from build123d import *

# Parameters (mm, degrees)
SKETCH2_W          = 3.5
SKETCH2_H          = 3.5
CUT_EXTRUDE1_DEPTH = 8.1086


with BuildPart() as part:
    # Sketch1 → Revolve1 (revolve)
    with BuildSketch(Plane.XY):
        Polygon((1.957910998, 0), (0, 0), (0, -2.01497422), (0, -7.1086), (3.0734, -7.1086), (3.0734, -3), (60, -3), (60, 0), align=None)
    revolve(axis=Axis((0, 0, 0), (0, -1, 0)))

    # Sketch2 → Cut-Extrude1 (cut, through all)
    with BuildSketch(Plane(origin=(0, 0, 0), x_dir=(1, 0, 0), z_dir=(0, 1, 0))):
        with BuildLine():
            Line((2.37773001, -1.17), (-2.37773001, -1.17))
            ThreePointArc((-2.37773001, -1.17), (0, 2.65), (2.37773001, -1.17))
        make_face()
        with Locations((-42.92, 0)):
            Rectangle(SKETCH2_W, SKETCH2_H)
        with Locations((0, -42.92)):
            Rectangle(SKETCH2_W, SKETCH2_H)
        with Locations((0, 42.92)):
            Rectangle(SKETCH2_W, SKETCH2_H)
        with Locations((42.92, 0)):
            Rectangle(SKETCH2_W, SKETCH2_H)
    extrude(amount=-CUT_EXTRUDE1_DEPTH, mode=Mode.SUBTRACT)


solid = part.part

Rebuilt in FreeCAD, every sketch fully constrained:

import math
import FreeCAD as App
import Part
import Sketcher


def add_polygon(sketch, points):
    """Adds a closed chain of lines whose ends are joined by coincident constraints."""
    first, n = sketch.GeometryCount, len(points)
    for a, b in zip(points, points[1:] + points[:1]):
        sketch.addGeometry(Part.LineSegment(App.Vector(*a, 0), App.Vector(*b, 0)), False)
    for i in range(n):
        sketch.addConstraint(Sketcher.Constraint("Coincident", first + i, 2, first + (i + 1) % n, 1))

doc = App.newDocument("Part")
params = doc.addObject("Spreadsheet::Sheet", "Params")
for row, (alias, value) in enumerate([
    ("sketch1_width", "60 mm"),
    ("sketch1_height", "3 mm"),
    ("revolution_angle", "360 deg"),
    ("sketch2_radius", "2.65 mm"),
    ("sketch2_width", "3.5 mm"),
], start=1):
    params.set(f"A{row}", alias)
    params.set(f"B{row}", "=" + value)
    params.setAlias(f"B{row}", alias)

body = doc.addObject("PartDesign::Body", "Body")

sketch1 = body.newObject("Sketcher::SketchObject", "Sketch")
sketch1.AttachmentSupport = (doc.getObject("XY_Plane"), [""])
sketch1.MapMode = "FlatFace"
add_polygon(sketch1, [(0, 0), (0, -7.1), (3.1, -7.1), (3.1, -3), (60, -3), (60, 0)])
sketch1.addConstraint([
    Sketcher.Constraint("Vertical", 0),
    Sketcher.Constraint("Horizontal", 1),
    Sketcher.Constraint("Vertical", 2),
    Sketcher.Constraint("Horizontal", 3),
    Sketcher.Constraint("Vertical", 4),
    Sketcher.Constraint("Horizontal", 5),
    Sketcher.Constraint("Coincident", 5, 2, -1, 1),
    Sketcher.Constraint("DistanceX", 5, 2, 5, 1, 60.0),
    Sketcher.Constraint("DistanceY", 4, 1, 4, 2, 3.0),
    Sketcher.Constraint("DistanceX", 1, 1, 1, 2, 3.0734),
    Sketcher.Constraint("DistanceY", 0, 2, 0, 1, 7.1086),
])
sketch1.setExpression("Constraints[13]", "Params.sketch1_width")
sketch1.setExpression("Constraints[14]", "Params.sketch1_height")
revolution = body.newObject("PartDesign::Revolution", "Revolution")
revolution.Profile = sketch1
revolution.ReferenceAxis = (sketch1, ["V_Axis"])
revolution.setExpression("Angle", "Params.revolution_angle")

sketch2 = body.newObject("Sketcher::SketchObject", "Sketch001")
sketch2.AttachmentSupport = (doc.getObject("XZ_Plane"), [""])
sketch2.MapMode = "FlatFace"
sketch2.addGeometry(Part.LineSegment(App.Vector(-2.4, 1.2, 0), App.Vector(2.4, 1.2, 0)), False)
sketch2.addGeometry(Part.ArcOfCircle(Part.Circle(App.Vector(0, 0, 0), App.Vector(0, 0, 1), 2.6), math.radians(154), math.radians(386)), False)
add_polygon(sketch2, [(-44.7, -1.8), (-44.7, 1.8), (-41.2, 1.8), (-41.2, -1.8)])
add_polygon(sketch2, [(-1.8, 41.2), (-1.8, 44.7), (1.8, 44.7), (1.8, 41.2)])
add_polygon(sketch2, [(-1.8, -44.7), (-1.8, -41.2), (1.8, -41.2), (1.8, -44.7)])
add_polygon(sketch2, [(41.2, -1.8), (41.2, 1.8), (44.7, 1.8), (44.7, -1.8)])
sketch2.addConstraint([
    Sketcher.Constraint("Coincident", 0, 1, 1, 1),
    Sketcher.Constraint("Coincident", 1, 2, 0, 2),
    Sketcher.Constraint("Horizontal", 0),
    Sketcher.Constraint("Vertical", 2),
    Sketcher.Constraint("Horizontal", 3),
    Sketcher.Constraint("Vertical", 4),
    Sketcher.Constraint("Horizontal", 5),
    Sketcher.Constraint("Vertical", 6),
    Sketcher.Constraint("Horizontal", 7),
    Sketcher.Constraint("Vertical", 8),
    Sketcher.Constraint("Horizontal", 9),
    Sketcher.Constraint("Vertical", 10),
    Sketcher.Constraint("Horizontal", 11),
    Sketcher.Constraint("Vertical", 12),
    Sketcher.Constraint("Horizontal", 13),
    Sketcher.Constraint("Vertical", 14),
    Sketcher.Constraint("Horizontal", 15),
    Sketcher.Constraint("Vertical", 16),
    Sketcher.Constraint("Horizontal", 17),
    Sketcher.Constraint("Coincident", 1, 3, -1, 1),
    Sketcher.Constraint("Symmetric", 8, 2, 10, 2, -1, 1),
    Sketcher.Constraint("Symmetric", 6, 2, 12, 2, -1, 1),
    Sketcher.Constraint("Symmetric", 4, 2, 14, 2, -1, 1),
    Sketcher.Constraint("Symmetric", 2, 2, 16, 2, -1, 1),
    Sketcher.Constraint("Horizontal", 3, 2, 14, 2),
    Sketcher.Constraint("Vertical", 9, 2, 10, 2),
    Sketcher.Constraint("Equal", 5, 7),
    Sketcher.Constraint("Equal", 17, 2),
    Sketcher.Constraint("Equal", 4, 6),
    Sketcher.Constraint("Radius", 1, 2.65),
    Sketcher.Constraint("DistanceX", 3, 1, 3, 2, 3.5),
    Sketcher.Constraint("DistanceY", 1, 2, 8, 2, 40.0),
    Sketcher.Constraint("DistanceY", -1, 1, 0, 1, 1.17),
    Sketcher.Constraint("DistanceX", 2, 2, -1, 1, 44.67),
])
sketch2.setExpression("Constraints[45]", "Params.sketch2_radius")
sketch2.setExpression("Constraints[46]", "Params.sketch2_width")
pocket1 = body.newObject("PartDesign::Pocket", "Pocket")
pocket1.Profile = sketch2
pocket1.Type = "ThroughAll"
pocket1.Reversed = True

doc.recompute()
